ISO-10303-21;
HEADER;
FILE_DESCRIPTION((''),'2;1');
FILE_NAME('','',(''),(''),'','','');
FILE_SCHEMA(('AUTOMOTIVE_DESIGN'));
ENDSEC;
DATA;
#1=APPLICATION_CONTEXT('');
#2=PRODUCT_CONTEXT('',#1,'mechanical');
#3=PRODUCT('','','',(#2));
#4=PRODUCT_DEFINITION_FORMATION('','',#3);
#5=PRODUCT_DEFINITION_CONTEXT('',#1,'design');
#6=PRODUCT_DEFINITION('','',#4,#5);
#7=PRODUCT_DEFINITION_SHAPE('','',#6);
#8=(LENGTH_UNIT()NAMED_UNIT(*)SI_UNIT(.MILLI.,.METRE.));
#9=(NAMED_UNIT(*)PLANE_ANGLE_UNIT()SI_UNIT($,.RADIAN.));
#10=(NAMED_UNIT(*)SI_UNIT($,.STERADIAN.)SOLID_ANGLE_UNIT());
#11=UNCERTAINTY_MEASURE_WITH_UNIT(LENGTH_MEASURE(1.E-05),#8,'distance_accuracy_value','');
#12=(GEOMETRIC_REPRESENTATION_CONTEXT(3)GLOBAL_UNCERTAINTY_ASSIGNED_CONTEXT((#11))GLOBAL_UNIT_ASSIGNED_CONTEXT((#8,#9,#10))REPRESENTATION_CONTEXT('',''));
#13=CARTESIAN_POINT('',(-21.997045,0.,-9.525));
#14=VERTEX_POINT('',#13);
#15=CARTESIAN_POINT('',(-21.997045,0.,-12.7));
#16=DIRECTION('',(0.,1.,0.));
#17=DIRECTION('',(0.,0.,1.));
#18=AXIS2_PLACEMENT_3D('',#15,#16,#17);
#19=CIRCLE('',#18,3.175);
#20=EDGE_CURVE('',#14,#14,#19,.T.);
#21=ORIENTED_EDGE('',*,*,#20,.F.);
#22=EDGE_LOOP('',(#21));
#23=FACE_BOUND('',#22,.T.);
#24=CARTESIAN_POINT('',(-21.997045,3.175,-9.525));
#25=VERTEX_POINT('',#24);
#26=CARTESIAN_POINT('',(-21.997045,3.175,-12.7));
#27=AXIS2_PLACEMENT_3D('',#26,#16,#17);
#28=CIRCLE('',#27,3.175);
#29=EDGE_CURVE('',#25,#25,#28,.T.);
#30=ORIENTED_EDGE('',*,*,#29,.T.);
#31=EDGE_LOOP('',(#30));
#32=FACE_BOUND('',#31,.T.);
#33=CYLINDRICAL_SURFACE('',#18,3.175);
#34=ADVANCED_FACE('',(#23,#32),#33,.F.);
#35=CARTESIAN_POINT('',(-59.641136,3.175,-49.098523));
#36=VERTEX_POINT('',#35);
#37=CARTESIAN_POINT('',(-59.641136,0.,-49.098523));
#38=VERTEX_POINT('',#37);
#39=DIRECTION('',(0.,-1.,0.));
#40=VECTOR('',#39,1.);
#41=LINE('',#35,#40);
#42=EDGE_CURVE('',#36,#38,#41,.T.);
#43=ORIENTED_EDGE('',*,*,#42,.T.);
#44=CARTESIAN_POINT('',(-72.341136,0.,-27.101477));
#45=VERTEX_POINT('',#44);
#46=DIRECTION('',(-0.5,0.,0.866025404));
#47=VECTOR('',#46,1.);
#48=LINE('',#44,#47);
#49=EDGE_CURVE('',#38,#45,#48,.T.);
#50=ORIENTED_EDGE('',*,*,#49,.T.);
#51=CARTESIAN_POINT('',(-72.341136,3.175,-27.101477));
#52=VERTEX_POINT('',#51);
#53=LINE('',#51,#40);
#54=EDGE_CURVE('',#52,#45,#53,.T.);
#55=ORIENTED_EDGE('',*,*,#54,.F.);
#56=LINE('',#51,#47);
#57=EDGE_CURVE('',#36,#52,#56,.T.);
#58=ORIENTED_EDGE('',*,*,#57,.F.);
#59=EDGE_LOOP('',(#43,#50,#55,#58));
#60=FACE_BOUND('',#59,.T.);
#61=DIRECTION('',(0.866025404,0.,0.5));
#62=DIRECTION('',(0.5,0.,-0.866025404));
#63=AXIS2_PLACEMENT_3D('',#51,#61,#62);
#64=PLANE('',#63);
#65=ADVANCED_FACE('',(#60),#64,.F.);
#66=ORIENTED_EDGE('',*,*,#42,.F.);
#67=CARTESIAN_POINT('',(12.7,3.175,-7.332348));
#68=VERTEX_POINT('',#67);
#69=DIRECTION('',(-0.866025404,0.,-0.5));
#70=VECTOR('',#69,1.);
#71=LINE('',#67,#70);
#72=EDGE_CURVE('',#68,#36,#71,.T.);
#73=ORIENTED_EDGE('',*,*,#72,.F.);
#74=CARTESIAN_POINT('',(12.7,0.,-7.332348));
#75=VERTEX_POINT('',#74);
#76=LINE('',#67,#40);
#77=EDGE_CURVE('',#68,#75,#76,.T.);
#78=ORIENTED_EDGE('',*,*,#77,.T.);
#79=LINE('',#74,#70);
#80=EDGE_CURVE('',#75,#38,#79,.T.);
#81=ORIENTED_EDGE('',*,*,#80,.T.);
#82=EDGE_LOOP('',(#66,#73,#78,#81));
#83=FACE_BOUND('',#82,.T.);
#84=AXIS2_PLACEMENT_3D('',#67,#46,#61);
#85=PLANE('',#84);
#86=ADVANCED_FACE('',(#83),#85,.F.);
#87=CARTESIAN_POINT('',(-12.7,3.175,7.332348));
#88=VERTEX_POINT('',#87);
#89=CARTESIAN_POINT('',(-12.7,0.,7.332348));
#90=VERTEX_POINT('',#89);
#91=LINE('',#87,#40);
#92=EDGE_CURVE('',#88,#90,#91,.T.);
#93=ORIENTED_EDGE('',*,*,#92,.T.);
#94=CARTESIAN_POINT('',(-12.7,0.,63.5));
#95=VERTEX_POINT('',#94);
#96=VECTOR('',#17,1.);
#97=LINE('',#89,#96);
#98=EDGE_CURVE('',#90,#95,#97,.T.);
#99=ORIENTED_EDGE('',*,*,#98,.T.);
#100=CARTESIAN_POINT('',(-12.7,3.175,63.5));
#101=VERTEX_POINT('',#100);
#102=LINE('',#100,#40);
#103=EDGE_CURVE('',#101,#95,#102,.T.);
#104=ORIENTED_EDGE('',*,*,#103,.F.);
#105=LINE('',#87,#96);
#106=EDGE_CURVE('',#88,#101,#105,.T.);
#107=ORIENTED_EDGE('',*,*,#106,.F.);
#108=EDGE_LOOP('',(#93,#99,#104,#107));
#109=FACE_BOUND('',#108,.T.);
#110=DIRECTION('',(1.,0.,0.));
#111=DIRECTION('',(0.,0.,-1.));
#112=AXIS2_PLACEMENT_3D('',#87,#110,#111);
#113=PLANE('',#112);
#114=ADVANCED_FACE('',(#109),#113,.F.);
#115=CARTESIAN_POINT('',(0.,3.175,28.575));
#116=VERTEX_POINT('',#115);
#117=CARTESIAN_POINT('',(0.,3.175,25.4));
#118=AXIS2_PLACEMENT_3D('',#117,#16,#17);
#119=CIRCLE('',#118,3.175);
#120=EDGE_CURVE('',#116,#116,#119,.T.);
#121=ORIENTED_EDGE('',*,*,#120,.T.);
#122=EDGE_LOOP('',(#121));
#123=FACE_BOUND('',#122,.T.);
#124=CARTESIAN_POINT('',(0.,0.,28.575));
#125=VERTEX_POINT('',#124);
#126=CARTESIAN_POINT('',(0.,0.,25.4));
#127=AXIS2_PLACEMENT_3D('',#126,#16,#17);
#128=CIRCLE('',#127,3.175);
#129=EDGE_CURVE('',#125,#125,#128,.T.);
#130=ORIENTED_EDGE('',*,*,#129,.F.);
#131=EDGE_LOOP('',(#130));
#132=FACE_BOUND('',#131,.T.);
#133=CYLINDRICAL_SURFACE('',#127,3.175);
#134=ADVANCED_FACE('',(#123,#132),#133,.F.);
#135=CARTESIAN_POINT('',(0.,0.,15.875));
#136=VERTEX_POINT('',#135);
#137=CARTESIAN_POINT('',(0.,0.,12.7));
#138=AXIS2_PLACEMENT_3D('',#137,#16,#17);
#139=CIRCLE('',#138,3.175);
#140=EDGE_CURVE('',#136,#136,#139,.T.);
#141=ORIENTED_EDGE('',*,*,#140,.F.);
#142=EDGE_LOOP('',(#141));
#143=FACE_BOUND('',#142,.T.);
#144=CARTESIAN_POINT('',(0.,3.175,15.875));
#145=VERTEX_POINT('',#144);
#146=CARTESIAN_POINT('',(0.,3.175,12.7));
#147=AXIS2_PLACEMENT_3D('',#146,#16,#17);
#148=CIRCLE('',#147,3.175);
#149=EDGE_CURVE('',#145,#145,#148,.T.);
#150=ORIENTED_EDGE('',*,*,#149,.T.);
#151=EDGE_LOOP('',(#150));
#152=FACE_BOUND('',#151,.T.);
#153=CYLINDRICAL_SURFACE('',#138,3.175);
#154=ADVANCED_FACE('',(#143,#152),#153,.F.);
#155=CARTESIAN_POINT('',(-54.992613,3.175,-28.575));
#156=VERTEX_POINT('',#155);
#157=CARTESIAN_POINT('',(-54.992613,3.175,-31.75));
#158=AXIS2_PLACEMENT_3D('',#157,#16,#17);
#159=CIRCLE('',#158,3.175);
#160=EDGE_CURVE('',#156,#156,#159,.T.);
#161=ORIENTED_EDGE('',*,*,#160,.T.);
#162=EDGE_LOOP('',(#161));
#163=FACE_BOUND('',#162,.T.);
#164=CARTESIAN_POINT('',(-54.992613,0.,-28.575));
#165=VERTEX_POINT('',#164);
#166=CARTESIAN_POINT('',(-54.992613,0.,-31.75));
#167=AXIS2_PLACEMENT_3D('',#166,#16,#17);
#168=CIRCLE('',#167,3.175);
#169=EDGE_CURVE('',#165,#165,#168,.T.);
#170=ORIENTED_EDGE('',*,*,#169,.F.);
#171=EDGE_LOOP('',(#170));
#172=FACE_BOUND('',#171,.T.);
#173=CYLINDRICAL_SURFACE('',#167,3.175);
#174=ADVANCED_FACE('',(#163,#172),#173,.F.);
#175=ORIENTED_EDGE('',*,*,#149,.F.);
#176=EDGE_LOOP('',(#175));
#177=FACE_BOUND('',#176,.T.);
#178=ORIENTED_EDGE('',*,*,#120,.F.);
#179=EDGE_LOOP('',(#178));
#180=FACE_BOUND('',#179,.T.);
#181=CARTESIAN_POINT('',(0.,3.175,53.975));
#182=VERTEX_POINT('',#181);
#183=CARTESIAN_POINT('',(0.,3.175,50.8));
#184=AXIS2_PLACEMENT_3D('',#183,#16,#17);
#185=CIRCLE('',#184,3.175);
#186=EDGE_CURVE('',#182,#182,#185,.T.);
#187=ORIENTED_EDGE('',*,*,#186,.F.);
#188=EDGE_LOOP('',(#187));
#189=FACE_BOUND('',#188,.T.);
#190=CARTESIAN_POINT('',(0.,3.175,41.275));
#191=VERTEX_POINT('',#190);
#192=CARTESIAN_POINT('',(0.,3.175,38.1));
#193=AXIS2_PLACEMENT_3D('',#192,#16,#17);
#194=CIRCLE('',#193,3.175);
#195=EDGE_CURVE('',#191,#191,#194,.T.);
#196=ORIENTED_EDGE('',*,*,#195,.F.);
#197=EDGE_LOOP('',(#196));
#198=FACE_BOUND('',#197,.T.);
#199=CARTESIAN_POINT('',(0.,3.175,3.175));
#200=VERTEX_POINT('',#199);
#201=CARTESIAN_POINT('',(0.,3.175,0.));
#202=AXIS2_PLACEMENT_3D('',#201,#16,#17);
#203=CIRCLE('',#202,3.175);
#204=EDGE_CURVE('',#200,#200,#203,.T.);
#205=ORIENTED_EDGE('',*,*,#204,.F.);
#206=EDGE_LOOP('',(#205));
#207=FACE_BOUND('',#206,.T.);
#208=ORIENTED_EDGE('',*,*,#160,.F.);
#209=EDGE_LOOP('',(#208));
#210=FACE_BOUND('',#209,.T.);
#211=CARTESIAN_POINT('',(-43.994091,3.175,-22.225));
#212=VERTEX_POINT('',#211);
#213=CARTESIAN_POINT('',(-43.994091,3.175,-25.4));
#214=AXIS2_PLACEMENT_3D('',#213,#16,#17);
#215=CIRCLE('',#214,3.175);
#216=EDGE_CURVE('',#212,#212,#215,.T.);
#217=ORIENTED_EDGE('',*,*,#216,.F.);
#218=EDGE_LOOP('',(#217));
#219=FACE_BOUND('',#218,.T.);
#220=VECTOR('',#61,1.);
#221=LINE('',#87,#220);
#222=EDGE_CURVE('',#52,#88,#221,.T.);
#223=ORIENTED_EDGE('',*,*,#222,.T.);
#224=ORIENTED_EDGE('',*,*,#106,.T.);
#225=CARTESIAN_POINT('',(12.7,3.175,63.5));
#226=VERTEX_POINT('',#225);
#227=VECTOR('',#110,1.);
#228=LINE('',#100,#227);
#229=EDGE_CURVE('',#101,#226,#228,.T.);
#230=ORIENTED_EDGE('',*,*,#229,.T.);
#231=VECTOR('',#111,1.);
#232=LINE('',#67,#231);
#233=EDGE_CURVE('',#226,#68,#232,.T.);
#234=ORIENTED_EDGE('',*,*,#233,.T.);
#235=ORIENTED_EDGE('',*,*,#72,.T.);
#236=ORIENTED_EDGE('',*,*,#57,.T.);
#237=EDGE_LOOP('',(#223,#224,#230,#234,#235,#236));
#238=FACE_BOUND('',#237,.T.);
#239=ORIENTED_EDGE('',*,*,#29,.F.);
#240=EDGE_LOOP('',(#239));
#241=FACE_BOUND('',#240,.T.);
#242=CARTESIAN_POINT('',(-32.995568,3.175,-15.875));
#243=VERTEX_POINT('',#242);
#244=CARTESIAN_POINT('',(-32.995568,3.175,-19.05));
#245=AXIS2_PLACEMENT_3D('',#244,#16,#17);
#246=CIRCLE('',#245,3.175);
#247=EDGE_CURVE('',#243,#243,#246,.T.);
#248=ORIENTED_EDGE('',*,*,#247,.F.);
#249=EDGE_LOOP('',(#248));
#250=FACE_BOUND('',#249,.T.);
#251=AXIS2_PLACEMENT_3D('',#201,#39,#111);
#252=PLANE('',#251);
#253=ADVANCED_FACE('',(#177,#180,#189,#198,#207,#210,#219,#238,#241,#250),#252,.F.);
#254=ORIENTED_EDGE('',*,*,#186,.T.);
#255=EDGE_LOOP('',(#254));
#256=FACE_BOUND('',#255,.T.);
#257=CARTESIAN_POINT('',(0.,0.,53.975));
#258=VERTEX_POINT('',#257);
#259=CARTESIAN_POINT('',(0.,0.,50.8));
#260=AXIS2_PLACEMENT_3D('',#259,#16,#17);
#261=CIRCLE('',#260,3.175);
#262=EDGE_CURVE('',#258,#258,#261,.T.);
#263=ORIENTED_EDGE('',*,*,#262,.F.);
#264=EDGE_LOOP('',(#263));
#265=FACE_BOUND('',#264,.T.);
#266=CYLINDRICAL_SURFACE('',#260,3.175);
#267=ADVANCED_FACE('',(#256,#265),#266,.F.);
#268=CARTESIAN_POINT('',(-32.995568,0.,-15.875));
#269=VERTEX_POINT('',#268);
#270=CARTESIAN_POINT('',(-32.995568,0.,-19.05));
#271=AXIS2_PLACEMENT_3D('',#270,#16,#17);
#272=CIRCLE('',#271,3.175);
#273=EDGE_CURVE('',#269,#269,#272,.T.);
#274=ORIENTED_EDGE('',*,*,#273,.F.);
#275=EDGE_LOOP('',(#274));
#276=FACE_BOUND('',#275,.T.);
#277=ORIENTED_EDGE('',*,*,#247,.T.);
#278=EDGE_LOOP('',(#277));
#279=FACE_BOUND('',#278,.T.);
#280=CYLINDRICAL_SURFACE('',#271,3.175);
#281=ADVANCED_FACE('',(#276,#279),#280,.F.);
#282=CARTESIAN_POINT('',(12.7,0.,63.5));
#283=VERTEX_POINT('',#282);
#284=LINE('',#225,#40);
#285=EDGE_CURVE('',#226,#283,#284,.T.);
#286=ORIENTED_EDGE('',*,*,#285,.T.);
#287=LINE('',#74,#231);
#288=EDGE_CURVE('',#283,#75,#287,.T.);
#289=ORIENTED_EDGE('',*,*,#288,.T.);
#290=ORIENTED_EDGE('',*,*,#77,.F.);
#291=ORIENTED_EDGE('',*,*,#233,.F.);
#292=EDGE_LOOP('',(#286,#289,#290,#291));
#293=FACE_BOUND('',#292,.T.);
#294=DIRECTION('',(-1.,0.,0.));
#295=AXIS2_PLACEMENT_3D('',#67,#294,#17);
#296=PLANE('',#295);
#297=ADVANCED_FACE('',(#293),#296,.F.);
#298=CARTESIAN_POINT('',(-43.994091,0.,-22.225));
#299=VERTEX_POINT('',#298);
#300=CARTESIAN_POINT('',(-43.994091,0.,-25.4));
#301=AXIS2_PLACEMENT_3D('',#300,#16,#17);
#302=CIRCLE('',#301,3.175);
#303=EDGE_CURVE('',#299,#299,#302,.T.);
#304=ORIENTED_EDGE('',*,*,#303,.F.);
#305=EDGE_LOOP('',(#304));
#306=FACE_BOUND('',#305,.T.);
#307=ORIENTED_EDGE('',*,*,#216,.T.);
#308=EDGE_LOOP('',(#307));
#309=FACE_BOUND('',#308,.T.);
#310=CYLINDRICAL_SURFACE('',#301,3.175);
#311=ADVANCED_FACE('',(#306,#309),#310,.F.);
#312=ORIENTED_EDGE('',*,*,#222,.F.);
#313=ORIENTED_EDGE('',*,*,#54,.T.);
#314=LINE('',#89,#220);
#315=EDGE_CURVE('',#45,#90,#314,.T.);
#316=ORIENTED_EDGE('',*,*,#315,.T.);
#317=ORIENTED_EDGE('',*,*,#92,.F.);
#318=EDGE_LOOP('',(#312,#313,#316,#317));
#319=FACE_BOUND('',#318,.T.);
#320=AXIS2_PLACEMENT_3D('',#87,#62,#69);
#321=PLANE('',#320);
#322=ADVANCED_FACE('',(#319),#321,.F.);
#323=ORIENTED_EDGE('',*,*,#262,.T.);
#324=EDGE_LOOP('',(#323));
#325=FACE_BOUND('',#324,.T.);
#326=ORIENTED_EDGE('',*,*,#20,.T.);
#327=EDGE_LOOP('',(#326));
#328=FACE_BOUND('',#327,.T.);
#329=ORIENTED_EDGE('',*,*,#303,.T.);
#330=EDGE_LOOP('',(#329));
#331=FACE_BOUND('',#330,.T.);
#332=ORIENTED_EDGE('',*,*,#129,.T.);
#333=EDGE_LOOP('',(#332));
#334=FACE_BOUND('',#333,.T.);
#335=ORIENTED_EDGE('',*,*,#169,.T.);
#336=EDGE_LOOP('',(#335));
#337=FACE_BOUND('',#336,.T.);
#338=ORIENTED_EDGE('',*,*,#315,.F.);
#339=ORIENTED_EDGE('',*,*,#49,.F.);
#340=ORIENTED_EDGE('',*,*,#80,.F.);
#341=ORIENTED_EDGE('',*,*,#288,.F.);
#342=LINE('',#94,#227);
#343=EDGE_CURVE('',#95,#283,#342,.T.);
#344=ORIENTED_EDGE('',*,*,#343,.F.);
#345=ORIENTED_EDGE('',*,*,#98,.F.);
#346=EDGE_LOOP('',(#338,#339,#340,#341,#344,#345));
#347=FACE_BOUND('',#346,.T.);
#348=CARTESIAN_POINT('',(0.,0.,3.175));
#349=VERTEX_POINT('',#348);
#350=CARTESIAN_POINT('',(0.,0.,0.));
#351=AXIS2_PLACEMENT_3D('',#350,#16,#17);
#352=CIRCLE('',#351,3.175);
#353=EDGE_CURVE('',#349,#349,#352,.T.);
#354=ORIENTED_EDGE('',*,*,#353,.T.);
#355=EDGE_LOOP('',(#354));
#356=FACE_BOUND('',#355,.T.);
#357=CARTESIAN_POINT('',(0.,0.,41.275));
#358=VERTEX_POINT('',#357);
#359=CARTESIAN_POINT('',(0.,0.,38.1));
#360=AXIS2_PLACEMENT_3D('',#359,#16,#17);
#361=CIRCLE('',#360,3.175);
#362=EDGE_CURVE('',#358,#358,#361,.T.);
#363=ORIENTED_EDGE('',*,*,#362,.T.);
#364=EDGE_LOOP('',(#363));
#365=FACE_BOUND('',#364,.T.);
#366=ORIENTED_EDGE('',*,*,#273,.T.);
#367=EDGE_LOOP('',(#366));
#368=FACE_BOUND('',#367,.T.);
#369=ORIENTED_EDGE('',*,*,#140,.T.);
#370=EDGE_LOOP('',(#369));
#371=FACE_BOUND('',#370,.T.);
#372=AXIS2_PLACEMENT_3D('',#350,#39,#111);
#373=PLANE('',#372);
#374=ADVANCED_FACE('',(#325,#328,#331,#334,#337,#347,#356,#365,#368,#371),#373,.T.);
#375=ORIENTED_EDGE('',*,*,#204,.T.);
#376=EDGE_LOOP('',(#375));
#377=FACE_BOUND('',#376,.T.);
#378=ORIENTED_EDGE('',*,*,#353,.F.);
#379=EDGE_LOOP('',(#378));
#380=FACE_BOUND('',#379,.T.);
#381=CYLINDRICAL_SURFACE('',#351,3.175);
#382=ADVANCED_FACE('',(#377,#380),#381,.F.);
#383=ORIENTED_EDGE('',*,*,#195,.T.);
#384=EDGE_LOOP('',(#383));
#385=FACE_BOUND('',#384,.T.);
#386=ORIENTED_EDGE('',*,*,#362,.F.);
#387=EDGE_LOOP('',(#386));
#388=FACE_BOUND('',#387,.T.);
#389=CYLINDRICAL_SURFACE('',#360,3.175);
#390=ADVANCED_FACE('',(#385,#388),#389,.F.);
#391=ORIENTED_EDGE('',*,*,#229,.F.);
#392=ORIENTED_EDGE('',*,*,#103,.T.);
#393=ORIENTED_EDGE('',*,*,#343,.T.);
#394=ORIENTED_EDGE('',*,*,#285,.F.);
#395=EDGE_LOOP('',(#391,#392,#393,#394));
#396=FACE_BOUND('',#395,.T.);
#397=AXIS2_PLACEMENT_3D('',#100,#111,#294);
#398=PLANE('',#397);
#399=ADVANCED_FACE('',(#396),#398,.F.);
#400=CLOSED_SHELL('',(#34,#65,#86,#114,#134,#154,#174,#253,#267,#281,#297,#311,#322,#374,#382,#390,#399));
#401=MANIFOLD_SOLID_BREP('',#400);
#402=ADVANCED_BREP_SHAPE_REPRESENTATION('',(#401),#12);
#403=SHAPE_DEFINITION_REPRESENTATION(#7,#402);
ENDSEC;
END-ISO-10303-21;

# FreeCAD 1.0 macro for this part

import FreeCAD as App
import Part
import Sketcher

V = App.Vector
Q = App.Units.Quantity

doc = App.newDocument("Part")
body = doc.addObject("PartDesign::Body", "Body")

sketch1 = body.newObject("Sketcher::SketchObject", "Sketch")
sketch1.AttachmentSupport = (doc.getObject("XZ_Plane"), [""])
sketch1.MapMode = "FlatFace"
sketch1.addGeometry(Part.LineSegment(V(13, 64, 0), V(13, -7, 0)), False)
sketch1.addGeometry(Part.LineSegment(V(13, -7, 0), V(-60, -49, 0)), False)
sketch1.addGeometry(Part.LineSegment(V(-60, -49, 0), V(-72, -27, 0)), False)
sketch1.addGeometry(Part.LineSegment(V(-72, -27, 0), V(-13, 7, 0)), False)
sketch1.addGeometry(Part.LineSegment(V(-13, 7, 0), V(-13, 64, 0)), False)
sketch1.addGeometry(Part.LineSegment(V(-13, 64, 0), V(13, 64, 0)), False)
sketch1.addConstraint(Sketcher.Constraint("Coincident", 0, 2, 1, 1))
sketch1.addConstraint(Sketcher.Constraint("Coincident", 1, 2, 2, 1))
sketch1.addConstraint(Sketcher.Constraint("Coincident", 2, 2, 3, 1))
sketch1.addConstraint(Sketcher.Constraint("Coincident", 3, 2, 4, 1))
sketch1.addConstraint(Sketcher.Constraint("Coincident", 4, 2, 5, 1))
sketch1.addConstraint(Sketcher.Constraint("Coincident", 5, 2, 0, 1))
sketch1.addConstraint(Sketcher.Constraint("Vertical", 0))
sketch1.addConstraint(Sketcher.Constraint("Vertical", 4))
sketch1.addConstraint(Sketcher.Constraint("Horizontal", 5))
sketch1.addConstraint(Sketcher.Constraint("Symmetric", 0, 2, 3, 2, -1, 1))
sketch1.addConstraint(Sketcher.Constraint("Perpendicular", 1, 2))
sketch1.addConstraint(Sketcher.Constraint("Perpendicular", 2, 3))
sketch1.addConstraint(Sketcher.Constraint("DistanceX", 5, 1, 5, 2, Q("1 in")))
sketch1.addConstraint(Sketcher.Constraint("Distance", 2, Q("1 in")))
sketch1.addConstraint(Sketcher.Constraint("Angle", 1, Q("-150 deg")))
sketch1.addConstraint(Sketcher.Constraint("DistanceY", -1, 1, 4, 2, Q("2.5 in")))
sketch1.addConstraint(Sketcher.Constraint("Distance", 1, 83.532348))
pad1 = body.newObject("PartDesign::Pad", "Pad")
pad1.Profile = sketch1
pad1.Length = Q("0.125 in")
pad1.Reversed = True

sketch2 = body.newObject("Sketcher::SketchObject", "Sketch001")
sketch2.AttachmentSupport = (doc.getObject("XZ_Plane"), [""])
sketch2.MapMode = "FlatFace"
sketch2.AttachmentOffset = App.Placement(V(0, 0, -0.125 * 25.4), App.Rotation())
sketch2.addGeometry(Part.Circle(V(-55, -31.8, 0), V(0, 0, 1), 3.2), False)
sketch2.addGeometry(Part.Circle(V(-44, -25.4, 0), V(0, 0, 1), 3.2), False)
sketch2.addGeometry(Part.Circle(V(-33, -19.1, 0), V(0, 0, 1), 3.2), False)
sketch2.addGeometry(Part.Circle(V(-22, -12.7, 0), V(0, 0, 1), 3.2), False)
sketch2.addGeometry(Part.Circle(V(0, 0, 0), V(0, 0, 1), 3.2), False)
sketch2.addGeometry(Part.Circle(V(0, 50.8, 0), V(0, 0, 1), 3.2), False)
sketch2.addGeometry(Part.Circle(V(0, 38.1, 0), V(0, 0, 1), 3.2), False)
sketch2.addGeometry(Part.Circle(V(0, 25.4, 0), V(0, 0, 1), 3.2), False)
sketch2.addGeometry(Part.Circle(V(0, 12.7, 0), V(0, 0, 1), 3.2), False)
sketch2.addConstraint(Sketcher.Constraint("Coincident", 4, 3, -1, 1))
sketch2.addConstraint(Sketcher.Constraint("Equal", 0, 1))
sketch2.addConstraint(Sketcher.Constraint("Equal", 1, 2))
sketch2.addConstraint(Sketcher.Constraint("Equal", 2, 3))
sketch2.addConstraint(Sketcher.Constraint("Equal", 3, 4))
sketch2.addConstraint(Sketcher.Constraint("Equal", 4, 5))
sketch2.addConstraint(Sketcher.Constraint("Equal", 5, 6))
sketch2.addConstraint(Sketcher.Constraint("Equal", 6, 7))
sketch2.addConstraint(Sketcher.Constraint("Equal", 7, 8))
sketch2.addConstraint(Sketcher.Constraint("PointOnObject", 5, 3, -2))
sketch2.addConstraint(Sketcher.Constraint("PointOnObject", 6, 3, -2))
sketch2.addConstraint(Sketcher.Constraint("PointOnObject", 7, 3, -2))
sketch2.addConstraint(Sketcher.Constraint("PointOnObject", 8, 3, -2))
sketch2.addConstraint(Sketcher.Constraint("Diameter", 0, Q("0.25 in")))
sketch2.addConstraint(Sketcher.Constraint("DistanceY", 1, 3, -1, 1, Q("1 in")))
sketch2.addConstraint(Sketcher.Constraint("DistanceY", -1, 1, 5, 3, Q("2 in")))
sketch2.addConstraint(Sketcher.Constraint("DistanceY", -1, 1, 7, 3, Q("1 in")))
sketch2.addConstraint(Sketcher.Constraint("DistanceY", 3, 3, 6, 3, Q("2 in")))
sketch2.addConstraint(Sketcher.Constraint("DistanceY", 8, 3, 6, 3, Q("1 in")))
sketch2.addConstraint(Sketcher.Constraint("DistanceY", 3, 3, -1, 1, Q("0.5 in")))
sketch2.addConstraint(Sketcher.Constraint("DistanceY", 0, 3, 2, 3, Q("0.5 in")))
sketch2.addConstraint(Sketcher.Constraint("DistanceY", 0, 3, -1, 1, Q("1.25 in")))
sketch2.addConstraint(Sketcher.Constraint("DistanceX", 1, 3, -1, 1, 43.994091))
sketch2.addConstraint(Sketcher.Constraint("DistanceX", 0, 3, -1, 1, 54.992613))
sketch2.addConstraint(Sketcher.Constraint("DistanceX", 2, 3, -1, 1, 32.995568))
sketch2.addConstraint(Sketcher.Constraint("DistanceX", 3, 3, -1, 1, 21.997045))
pocket1 = body.newObject("PartDesign::Pocket", "Pocket")
pocket1.Profile = sketch2
pocket1.Type = "ThroughAll"
pocket1.Reversed = True

doc.recompute()
